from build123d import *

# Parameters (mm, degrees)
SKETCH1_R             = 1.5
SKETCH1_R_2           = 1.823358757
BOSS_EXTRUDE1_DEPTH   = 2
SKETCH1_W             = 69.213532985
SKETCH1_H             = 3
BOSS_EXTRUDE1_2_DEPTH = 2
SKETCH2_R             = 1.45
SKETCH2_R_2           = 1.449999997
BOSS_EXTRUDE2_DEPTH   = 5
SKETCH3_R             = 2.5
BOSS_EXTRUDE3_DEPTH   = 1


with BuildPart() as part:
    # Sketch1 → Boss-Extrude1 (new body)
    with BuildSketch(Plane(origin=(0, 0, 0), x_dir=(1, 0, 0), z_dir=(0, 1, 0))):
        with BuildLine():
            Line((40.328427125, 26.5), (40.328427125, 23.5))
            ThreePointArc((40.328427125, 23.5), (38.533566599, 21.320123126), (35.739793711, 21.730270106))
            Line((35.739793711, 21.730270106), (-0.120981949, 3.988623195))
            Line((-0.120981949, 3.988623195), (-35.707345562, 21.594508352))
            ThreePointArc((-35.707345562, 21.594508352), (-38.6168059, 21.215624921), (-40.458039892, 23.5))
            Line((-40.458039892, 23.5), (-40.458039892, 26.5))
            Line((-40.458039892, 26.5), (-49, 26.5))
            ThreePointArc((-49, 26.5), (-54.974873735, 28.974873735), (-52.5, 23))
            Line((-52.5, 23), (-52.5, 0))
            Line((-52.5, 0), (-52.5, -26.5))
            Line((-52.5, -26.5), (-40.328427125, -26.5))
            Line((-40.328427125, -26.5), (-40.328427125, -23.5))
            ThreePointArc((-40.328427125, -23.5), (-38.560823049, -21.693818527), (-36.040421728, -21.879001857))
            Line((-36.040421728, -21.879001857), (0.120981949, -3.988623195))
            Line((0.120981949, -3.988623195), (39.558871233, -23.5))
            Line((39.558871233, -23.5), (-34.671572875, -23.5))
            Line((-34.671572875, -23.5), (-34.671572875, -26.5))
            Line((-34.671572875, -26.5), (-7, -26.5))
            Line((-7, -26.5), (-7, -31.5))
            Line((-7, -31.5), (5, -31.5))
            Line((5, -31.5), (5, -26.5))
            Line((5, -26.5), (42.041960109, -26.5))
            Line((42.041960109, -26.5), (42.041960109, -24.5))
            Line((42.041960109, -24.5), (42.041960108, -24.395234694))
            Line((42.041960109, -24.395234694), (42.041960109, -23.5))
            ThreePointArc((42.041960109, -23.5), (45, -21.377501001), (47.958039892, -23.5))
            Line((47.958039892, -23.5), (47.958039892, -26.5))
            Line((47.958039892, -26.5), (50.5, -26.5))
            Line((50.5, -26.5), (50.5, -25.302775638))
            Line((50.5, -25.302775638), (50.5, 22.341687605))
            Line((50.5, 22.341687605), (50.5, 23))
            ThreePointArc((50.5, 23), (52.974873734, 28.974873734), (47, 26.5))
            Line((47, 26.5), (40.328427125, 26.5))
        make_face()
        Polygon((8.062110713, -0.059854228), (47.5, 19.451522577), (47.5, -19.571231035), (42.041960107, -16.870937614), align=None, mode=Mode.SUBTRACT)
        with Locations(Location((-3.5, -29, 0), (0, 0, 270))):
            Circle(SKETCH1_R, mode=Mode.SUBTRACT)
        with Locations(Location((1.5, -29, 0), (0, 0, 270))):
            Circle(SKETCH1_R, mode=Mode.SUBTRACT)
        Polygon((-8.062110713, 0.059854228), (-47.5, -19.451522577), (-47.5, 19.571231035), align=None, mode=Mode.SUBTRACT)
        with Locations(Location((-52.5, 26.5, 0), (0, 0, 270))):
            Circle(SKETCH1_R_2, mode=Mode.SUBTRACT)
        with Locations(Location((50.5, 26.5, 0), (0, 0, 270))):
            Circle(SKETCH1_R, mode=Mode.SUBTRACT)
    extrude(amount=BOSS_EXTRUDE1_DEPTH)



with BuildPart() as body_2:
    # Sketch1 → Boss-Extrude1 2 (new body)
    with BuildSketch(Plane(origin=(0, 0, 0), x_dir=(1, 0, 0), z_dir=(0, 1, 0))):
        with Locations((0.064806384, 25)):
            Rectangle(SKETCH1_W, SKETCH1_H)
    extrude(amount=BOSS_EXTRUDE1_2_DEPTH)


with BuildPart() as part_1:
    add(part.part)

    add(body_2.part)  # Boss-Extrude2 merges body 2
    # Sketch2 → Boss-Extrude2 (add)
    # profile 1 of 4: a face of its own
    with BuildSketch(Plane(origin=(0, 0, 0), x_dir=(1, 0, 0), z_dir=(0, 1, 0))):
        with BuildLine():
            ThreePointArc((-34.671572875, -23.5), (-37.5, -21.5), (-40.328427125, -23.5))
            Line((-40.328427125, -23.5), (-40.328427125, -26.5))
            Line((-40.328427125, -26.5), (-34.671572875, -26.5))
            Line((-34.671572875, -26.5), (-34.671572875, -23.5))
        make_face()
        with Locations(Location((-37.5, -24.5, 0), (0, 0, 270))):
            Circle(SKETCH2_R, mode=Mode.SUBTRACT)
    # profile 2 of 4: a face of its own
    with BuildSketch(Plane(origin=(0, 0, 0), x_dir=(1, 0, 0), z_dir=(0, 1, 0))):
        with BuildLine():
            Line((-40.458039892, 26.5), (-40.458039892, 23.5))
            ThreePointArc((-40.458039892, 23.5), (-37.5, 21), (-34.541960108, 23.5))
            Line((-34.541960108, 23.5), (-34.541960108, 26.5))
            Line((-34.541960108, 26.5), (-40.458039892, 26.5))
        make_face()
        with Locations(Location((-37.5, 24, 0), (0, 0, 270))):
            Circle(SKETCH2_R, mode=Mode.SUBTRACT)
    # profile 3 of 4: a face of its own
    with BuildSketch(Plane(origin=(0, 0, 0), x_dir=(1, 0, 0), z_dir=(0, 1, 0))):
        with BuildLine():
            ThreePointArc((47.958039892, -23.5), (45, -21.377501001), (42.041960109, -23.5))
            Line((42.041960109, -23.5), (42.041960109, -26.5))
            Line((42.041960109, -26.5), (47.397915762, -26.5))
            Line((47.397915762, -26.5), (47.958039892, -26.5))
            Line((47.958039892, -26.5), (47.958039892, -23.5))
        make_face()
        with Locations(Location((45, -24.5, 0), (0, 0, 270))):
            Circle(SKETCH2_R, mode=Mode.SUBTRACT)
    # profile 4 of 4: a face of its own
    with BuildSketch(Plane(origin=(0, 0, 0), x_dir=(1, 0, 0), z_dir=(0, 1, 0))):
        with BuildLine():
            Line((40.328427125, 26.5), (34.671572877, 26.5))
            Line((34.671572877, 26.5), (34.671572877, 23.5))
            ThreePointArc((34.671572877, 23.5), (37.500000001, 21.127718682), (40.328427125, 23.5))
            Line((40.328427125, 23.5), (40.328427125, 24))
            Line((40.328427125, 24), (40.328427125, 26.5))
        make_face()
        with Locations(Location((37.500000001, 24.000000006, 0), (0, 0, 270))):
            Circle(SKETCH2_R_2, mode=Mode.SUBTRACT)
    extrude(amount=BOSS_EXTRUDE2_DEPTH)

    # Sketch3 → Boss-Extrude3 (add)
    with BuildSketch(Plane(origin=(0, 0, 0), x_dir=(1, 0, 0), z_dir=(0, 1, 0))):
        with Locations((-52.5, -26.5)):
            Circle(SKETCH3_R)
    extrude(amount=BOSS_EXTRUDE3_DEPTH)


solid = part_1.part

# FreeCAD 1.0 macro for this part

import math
import FreeCAD as App
import Part
import Sketcher
from FreeCAD import Vector

doc = App.newDocument("Part")
body = doc.addObject("PartDesign::Body", "Body")

# Sketch on XZ plane
sketch1 = body.newObject("Sketcher::SketchObject", "Sketch")
sketch1.AttachmentSupport = (doc.getObject("XZ_Plane"), [""])
sketch1.MapMode = "FlatFace"
sketch1.addGeometry([
    Part.LineSegment(Vector(40.33, -26.5, 0), Vector(40.33, -23.5, 0)),  # 0
    Part.ArcOfCircle(Part.Circle(Vector(37.5, -24, 0), Vector(0, 0, 1), 2.87), math.radians(10), math.radians(128)),  # 1
    Part.LineSegment(Vector(35.74, -21.73, 0), Vector(-0.12, -3.99, 0)),  # 2
    Part.LineSegment(Vector(-0.12, -3.99, 0), Vector(-35.71, -21.59, 0)),  # 3
    Part.ArcOfCircle(Part.Circle(Vector(-37.5, -24, 0), Vector(0, 0, 1), 3), math.radians(53), math.radians(170)),  # 4
    Part.LineSegment(Vector(-40.46, -23.5, 0), Vector(-40.46, -26.5, 0)),  # 5
    Part.LineSegment(Vector(-40.46, -26.5, 0), Vector(-49, -26.5, 0)),  # 6
    Part.ArcOfCircle(Part.Circle(Vector(-52.5, -26.5, 0), Vector(0, 0, 1), 3.5), math.radians(90), math.radians(360)),  # 7
    Part.LineSegment(Vector(-52.5, -23, 0), Vector(-52.5, 26.5, 0)),  # 8
    Part.LineSegment(Vector(-52.5, 26.5, 0), Vector(-40.33, 26.5, 0)),  # 9
    Part.LineSegment(Vector(-40.33, 26.5, 0), Vector(-40.33, 23.5, 0)),  # 10
    Part.ArcOfCircle(Part.Circle(Vector(-37.5, 24.5, 0), Vector(0, 0, 1), 3), math.radians(-161), math.radians(-61)),  # 11
    Part.LineSegment(Vector(-36.04, 21.88, 0), Vector(0.12, 3.99, 0)),  # 12
    Part.LineSegment(Vector(0.12, 3.99, 0), Vector(39.56, 23.5, 0)),  # 13
    Part.LineSegment(Vector(39.56, 23.5, 0), Vector(-34.67, 23.5, 0)),  # 14
    Part.LineSegment(Vector(-34.67, 23.5, 0), Vector(-34.67, 26.5, 0)),  # 15
    Part.LineSegment(Vector(-34.67, 26.5, 0), Vector(-7, 26.5, 0)),  # 16
    Part.LineSegment(Vector(-7, 26.5, 0), Vector(-7, 31.5, 0)),  # 17
    Part.LineSegment(Vector(-7, 31.5, 0), Vector(5, 31.5, 0)),  # 18
    Part.LineSegment(Vector(5, 31.5, 0), Vector(5, 26.5, 0)),  # 19
    Part.LineSegment(Vector(5, 26.5, 0), Vector(42.04, 26.5, 0)),  # 20
    Part.LineSegment(Vector(42.04, 26.5, 0), Vector(42.04, 24.5, 0)),  # 21
    Part.LineSegment(Vector(42.04, 24.5, 0), Vector(42.04, 24.4, 0)),  # 22
    Part.LineSegment(Vector(42.04, 24.4, 0), Vector(42.04, 23.5, 0)),  # 23
    Part.ArcOfCircle(Part.Circle(Vector(45, 24.5, 0), Vector(0, 0, 1), 3.12), math.radians(-161), math.radians(-19)),  # 24
    Part.LineSegment(Vector(47.96, 23.5, 0), Vector(47.96, 26.5, 0)),  # 25
    Part.LineSegment(Vector(47.96, 26.5, 0), Vector(50.5, 26.5, 0)),  # 26
    Part.LineSegment(Vector(50.5, 26.5, 0), Vector(50.5, -23, 0)),  # 27
    Part.ArcOfCircle(Part.Circle(Vector(50.5, -26.5, 0), Vector(0, 0, 1), 3.5), math.radians(180), math.radians(450)),  # 28
    Part.LineSegment(Vector(47, -26.5, 0), Vector(40.33, -26.5, 0)),  # 29
    Part.Circle(Vector(-3.5, 29, 0), Vector(0, 0, 1), 1.5),  # 30
    Part.Circle(Vector(1.5, 29, 0), Vector(0, 0, 1), 1.5),  # 31
    Part.LineSegment(Vector(-47.5, -19.57, 0), Vector(-8.06, -0.06, 0)),  # 32
    Part.LineSegment(Vector(-8.06, -0.06, 0), Vector(-47.5, 19.45, 0)),  # 33
    Part.LineSegment(Vector(-47.5, 19.45, 0), Vector(-47.5, -19.57, 0)),  # 34
    Part.Circle(Vector(-52.5, -26.5, 0), Vector(0, 0, 1), 1.82),  # 35
    Part.LineSegment(Vector(47.5, 19.57, 0), Vector(8.06, 0.06, 0)),  # 36
    Part.LineSegment(Vector(8.06, 0.06, 0), Vector(47.5, -19.45, 0)),  # 37
    Part.LineSegment(Vector(47.5, -19.45, 0), Vector(47.5, 19.57, 0)),  # 38
    Part.Circle(Vector(50.5, -26.5, 0), Vector(0, 0, 1), 1.5),  # 39
], False)
sketch1.addConstraint([
    Sketcher.Constraint("Coincident", 0, 2, 1, 1),
    Sketcher.Constraint("Coincident", 1, 2, 2, 1),
    Sketcher.Constraint("Coincident", 2, 2, 3, 1),
    Sketcher.Constraint("Coincident", 3, 2, 4, 1),
    Sketcher.Constraint("Coincident", 4, 2, 5, 1),
    Sketcher.Constraint("Coincident", 5, 2, 6, 1),
    Sketcher.Constraint("Coincident", 6, 2, 7, 2),
    Sketcher.Constraint("Coincident", 7, 1, 8, 1),
    Sketcher.Constraint("Coincident", 8, 2, 9, 1),
    Sketcher.Constraint("Coincident", 9, 2, 10, 1),
    Sketcher.Constraint("Coincident", 10, 2, 11, 1),
    Sketcher.Constraint("Coincident", 11, 2, 12, 1),
    Sketcher.Constraint("Coincident", 12, 2, 13, 1),
    Sketcher.Constraint("Coincident", 13, 2, 14, 1),
    Sketcher.Constraint("Coincident", 14, 2, 15, 1),
    Sketcher.Constraint("Coincident", 15, 2, 16, 1),
    Sketcher.Constraint("Coincident", 16, 2, 17, 1),
    Sketcher.Constraint("Coincident", 17, 2, 18, 1),
    Sketcher.Constraint("Coincident", 18, 2, 19, 1),
    Sketcher.Constraint("Coincident", 19, 2, 20, 1),
    Sketcher.Constraint("Coincident", 20, 2, 21, 1),
    Sketcher.Constraint("Coincident", 21, 2, 22, 1),
    Sketcher.Constraint("Coincident", 22, 2, 23, 1),
    Sketcher.Constraint("Coincident", 23, 2, 24, 1),
    Sketcher.Constraint("Coincident", 24, 2, 25, 1),
    Sketcher.Constraint("Coincident", 25, 2, 26, 1),
    Sketcher.Constraint("Coincident", 26, 2, 27, 1),
    Sketcher.Constraint("Coincident", 27, 2, 28, 2),
    Sketcher.Constraint("Coincident", 28, 1, 29, 1),
    Sketcher.Constraint("Coincident", 29, 2, 0, 1),
    Sketcher.Constraint("Coincident", 32, 2, 33, 1),
    Sketcher.Constraint("Coincident", 33, 2, 34, 1),
    Sketcher.Constraint("Coincident", 34, 2, 32, 1),
    Sketcher.Constraint("Coincident", 36, 2, 37, 1),
    Sketcher.Constraint("Coincident", 37, 2, 38, 1),
    Sketcher.Constraint("Coincident", 38, 2, 36, 1),
    Sketcher.Constraint("Vertical", 0),
    Sketcher.Constraint("Vertical", 5),
    Sketcher.Constraint("Horizontal", 6),
    Sketcher.Constraint("Vertical", 8),
    Sketcher.Constraint("Horizontal", 9),
    Sketcher.Constraint("Vertical", 10),
    Sketcher.Constraint("Horizontal", 14),
    Sketcher.Constraint("Vertical", 15),
    Sketcher.Constraint("Horizontal", 16),
    Sketcher.Constraint("Vertical", 17),
    Sketcher.Constraint("Horizontal", 18),
    Sketcher.Constraint("Vertical", 19),
    Sketcher.Constraint("Horizontal", 20),
    Sketcher.Constraint("Vertical", 21),
    Sketcher.Constraint("Vertical", 22),
    Sketcher.Constraint("Vertical", 23),
    Sketcher.Constraint("Vertical", 25),
    Sketcher.Constraint("Horizontal", 26),
    Sketcher.Constraint("Vertical", 27),
    Sketcher.Constraint("Horizontal", 29),
    Sketcher.Constraint("Vertical", 34),
    Sketcher.Constraint("Vertical", 38),
    Sketcher.Constraint("Coincident", 35, 3, 7, 3),
    Sketcher.Constraint("Coincident", 39, 3, 28, 3),
    Sketcher.Constraint("Equal", 4, 11),
    Sketcher.Constraint("Equal", 7, 28),
    Sketcher.Constraint("Equal", 30, 31),
    Sketcher.Constraint("Equal", 31, 39),
    Sketcher.Constraint("Symmetric", 0, 2, 10, 2, -1, 1),
    Sketcher.Constraint("Symmetric", 2, 2, 12, 2, -1, 1),
    Sketcher.Constraint("Symmetric", 32, 2, 36, 2, -1, 1),
    Sketcher.Constraint("Symmetric", 33, 2, 37, 2, -1, 1),
    Sketcher.Constraint("Symmetric", 1, 3, 4, 3, -2),
    Sketcher.Constraint("Parallel", 2, 12),
    Sketcher.Constraint("Parallel", 3, 13),
    Sketcher.Constraint("Parallel", 13, 32),
    Sketcher.Constraint("Parallel", 12, 33),
    Sketcher.Constraint("Parallel", 32, 36),
    Sketcher.Constraint("Horizontal", 11, 3, 24, 3),
    Sketcher.Constraint("Horizontal", 7, 3, 28, 3),
    Sketcher.Constraint("Horizontal", 30, 3, 31, 3),
    Sketcher.Constraint("Horizontal", 0, 2, 4, 2),
    Sketcher.Constraint("Horizontal", 39, 3, 5, 2),
    Sketcher.Constraint("Horizontal", 10, 2, 13, 2),
    Sketcher.Constraint("Horizontal", 9, 2, 15, 2),
    Sketcher.Constraint("Horizontal", 16, 2, 19, 2),
    Sketcher.Constraint("Horizontal", 24, 3, 21, 2),
    Sketcher.Constraint("Horizontal", 14, 2, 23, 2),
    Sketcher.Constraint("Horizontal", 23, 2, 24, 2),
    Sketcher.Constraint("Horizontal", 20, 2, 25, 2),
    Sketcher.Constraint("Horizontal", 6, 2, 28, 1),
    Sketcher.Constraint("Vertical", 4, 3, 11, 3),
    Sketcher.Constraint("Vertical", 35, 3, 7, 1),
    Sketcher.Constraint("Vertical", 39, 3, 26, 2),
    Sketcher.Constraint("Equal", 5, 10),
    Sketcher.Constraint("Equal", 13, 32),
    Sketcher.Constraint("Equal", 32, 33),
    Sketcher.Constraint("Diameter", 30, 3.0),
    Sketcher.Constraint("Radius", 4, 3.0),
    Sketcher.Constraint("Radius", 7, 3.5),
    Sketcher.Constraint("DistanceX", 18, 1, 18, 2, 12.0),
    Sketcher.Constraint("DistanceY", 0, 1, 0, 2, 3.0),
    Sketcher.Constraint("DistanceY", 17, 1, 17, 2, 5.0),
    Sketcher.Constraint("DistanceY", 21, 2, 21, 1, 2.0),
    Sketcher.Constraint("DistanceY", 8, 1, 8, 2, 49.5),
    Sketcher.Constraint("DistanceY", 1, 3, -1, 1, 24.0),
    Sketcher.Constraint("DistanceX", -1, 1, 24, 3, 45.0),
    Sketcher.Constraint("DistanceY", -1, 1, 30, 3, 29.0),
    Sketcher.Constraint("DistanceX", 6, 2, -1, 1, 49.0),
    Sketcher.Constraint("DistanceX", 16, 2, -1, 1, 7.0),
    Sketcher.Constraint("DistanceX", -1, 1, 28, 1, 47.0),
    Sketcher.Constraint("DistanceX", 4, 3, 1, 3, 75.0),
    Sketcher.Constraint("DistanceX", 11, 3, 30, 3, 34.0),
    Sketcher.Constraint("DistanceX", 30, 3, 31, 3, 5.0),
    Sketcher.Constraint("DistanceX", 8, 2, 33, 2, 5.0),
    Sketcher.Constraint("Radius", 24, 3.122499),
    Sketcher.Constraint("Diameter", 35, 3.646718),
    Sketcher.Constraint("DistanceY", -1, 1, 11, 2, 21.879002),
    Sketcher.Constraint("DistanceX", 14, 2, 14, 1, 74.230444),
    Sketcher.Constraint("DistanceX", 16, 1, 16, 2, 27.671573),
    Sketcher.Constraint("DistanceY", 22, 2, 22, 1, 0.104765),
    Sketcher.Constraint("DistanceY", 34, 2, 34, 1, 39.022754),
    Sketcher.Constraint("DistanceY", 34, 2, -1, 1, 19.571231),
])
pad1 = body.newObject("PartDesign::Pad", "Pad")
pad1.Profile = sketch1
pad1.Length = 2
pad1.Reversed = True
body2 = doc.addObject("PartDesign::Body", "Body001")

# Sketch on XZ plane
sketch2 = body2.newObject("Sketcher::SketchObject", "Sketch001")
sketch2.AttachmentSupport = (doc.getObject("XZ_Plane001"), [""])
sketch2.MapMode = "FlatFace"
sketch2.addGeometry([
    Part.LineSegment(Vector(-34.5, -26.5, 0), Vector(-34.5, -23.5, 0)),
    Part.LineSegment(Vector(-34.5, -23.5, 0), Vector(34.7, -23.5, 0)),
    Part.LineSegment(Vector(34.7, -23.5, 0), Vector(34.7, -26.5, 0)),
    Part.LineSegment(Vector(34.7, -26.5, 0), Vector(-34.5, -26.5, 0)),
], False)
sketch2.addConstraint([
    Sketcher.Constraint("Coincident", 0, 2, 1, 1),
    Sketcher.Constraint("Coincident", 1, 2, 2, 1),
    Sketcher.Constraint("Coincident", 2, 2, 3, 1),
    Sketcher.Constraint("Coincident", 3, 2, 0, 1),
    Sketcher.Constraint("Vertical", 0),
    Sketcher.Constraint("Horizontal", 1),
    Sketcher.Constraint("Vertical", 2),
    Sketcher.Constraint("Horizontal", 3),
    Sketcher.Constraint("DistanceY", 0, 1, 0, 2, 3.0),
    Sketcher.Constraint("DistanceY", 0, 2, -1, 1, 23.5),
    Sketcher.Constraint("DistanceX", 1, 1, 1, 2, 69.213533),
    Sketcher.Constraint("DistanceX", 0, 2, -1, 1, 34.54196),
])
pad2 = body2.newObject("PartDesign::Pad", "Pad001")
pad2.Profile = sketch2
pad2.Length = 2
pad2.Reversed = True
body.AllowCompound = True
doc.recompute()

boolean = body.newObject("PartDesign::Boolean", "Boolean")
boolean.Type = "Fuse"
boolean.addObjects([body2])

# Sketch on XZ plane
sketch3 = body.newObject("Sketcher::SketchObject", "Sketch002")
sketch3.AttachmentSupport = (doc.getObject("XZ_Plane"), [""])
sketch3.MapMode = "FlatFace"
sketch3.addGeometry([
    Part.ArcOfCircle(Part.Circle(Vector(-37.5, 24.5, 0), Vector(0, 0, 1), 3), math.radians(-161), math.radians(-19)),  # 0
    Part.LineSegment(Vector(-40.3, 23.5, 0), Vector(-40.3, 26.5, 0)),  # 1
    Part.LineSegment(Vector(-40.3, 26.5, 0), Vector(-34.7, 26.5, 0)),  # 2
    Part.LineSegment(Vector(-34.7, 26.5, 0), Vector(-34.7, 23.5, 0)),  # 3
    Part.Circle(Vector(-37.5, 24.5, 0), Vector(0, 0, 1), 1.4),  # 4
    Part.LineSegment(Vector(-40.5, -26.5, 0), Vector(-40.5, -23.5, 0)),  # 5
    Part.ArcOfCircle(Part.Circle(Vector(-37.5, -24, 0), Vector(0, 0, 1), 3), math.radians(10), math.radians(170)),  # 6
    Part.LineSegment(Vector(-34.5, -23.5, 0), Vector(-34.5, -26.5, 0)),  # 7
    Part.LineSegment(Vector(-34.5, -26.5, 0), Vector(-40.5, -26.5, 0)),  # 8
    Part.Circle(Vector(-37.5, -24, 0), Vector(0, 0, 1), 1.4),  # 9
    Part.ArcOfCircle(Part.Circle(Vector(45, 24.5, 0), Vector(0, 0, 1), 3.1), math.radians(-161), math.radians(-19)),  # 10
    Part.LineSegment(Vector(42, 23.5, 0), Vector(42, 26.5, 0)),  # 11
    Part.LineSegment(Vector(42, 26.5, 0), Vector(48, 26.5, 0)),  # 12
    Part.LineSegment(Vector(48, 26.5, 0), Vector(48, 23.5, 0)),  # 13
    Part.Circle(Vector(45, 24.5, 0), Vector(0, 0, 1), 1.4),  # 14
    Part.LineSegment(Vector(40.3, -26.5, 0), Vector(34.7, -26.5, 0)),  # 15
    Part.LineSegment(Vector(34.7, -26.5, 0), Vector(34.7, -23.5, 0)),  # 16
    Part.ArcOfCircle(Part.Circle(Vector(37.5, -24, 0), Vector(0, 0, 1), 2.9), math.radians(10), math.radians(170)),  # 17
    Part.LineSegment(Vector(40.3, -23.5, 0), Vector(40.3, -26.5, 0)),  # 18
    Part.Circle(Vector(37.5, -24, 0), Vector(0, 0, 1), 1.4),  # 19
], False)
sketch3.addConstraint([
    Sketcher.Constraint("Coincident", 0, 1, 1, 1),
    Sketcher.Constraint("Coincident", 1, 2, 2, 1),
    Sketcher.Constraint("Coincident", 2, 2, 3, 1),
    Sketcher.Constraint("Coincident", 3, 2, 0, 2),
    Sketcher.Constraint("Coincident", 5, 2, 6, 2),
    Sketcher.Constraint("Coincident", 6, 1, 7, 1),
    Sketcher.Constraint("Coincident", 7, 2, 8, 1),
    Sketcher.Constraint("Coincident", 8, 2, 5, 1),
    Sketcher.Constraint("Coincident", 10, 1, 11, 1),
    Sketcher.Constraint("Coincident", 11, 2, 12, 1),
    Sketcher.Constraint("Coincident", 12, 2, 13, 1),
    Sketcher.Constraint("Coincident", 13, 2, 10, 2),
    Sketcher.Constraint("Coincident", 15, 2, 16, 1),
    Sketcher.Constraint("Coincident", 16, 2, 17, 2),
    Sketcher.Constraint("Coincident", 17, 1, 18, 1),
    Sketcher.Constraint("Coincident", 18, 2, 15, 1),
    Sketcher.Constraint("Vertical", 1),
    Sketcher.Constraint("Horizontal", 2),
    Sketcher.Constraint("Vertical", 3),
    Sketcher.Constraint("Vertical", 5),
    Sketcher.Constraint("Vertical", 7),
    Sketcher.Constraint("Horizontal", 8),
    Sketcher.Constraint("Vertical", 11),
    Sketcher.Constraint("Horizontal", 12),
    Sketcher.Constraint("Vertical", 13),
    Sketcher.Constraint("Horizontal", 15),
    Sketcher.Constraint("Vertical", 16),
    Sketcher.Constraint("Vertical", 18),
    Sketcher.Constraint("Coincident", 4, 3, 0, 3),
    Sketcher.Constraint("Coincident", 9, 3, 6, 3),
    Sketcher.Constraint("Coincident", 14, 3, 10, 3),
    Sketcher.Constraint("Coincident", 19, 3, 17, 3),
    Sketcher.Constraint("Equal", 0, 6),
    Sketcher.Constraint("Equal", 4, 9),
    Sketcher.Constraint("Equal", 9, 14),
    Sketcher.Constraint("Equal", 14, 19),
    Sketcher.Constraint("Symmetric", 2, 2, 15, 2, -1, 1),
    Sketcher.Constraint("Symmetric", 0, 1, 17, 1, -1, 1),
    Sketcher.Constraint("Symmetric", 6, 3, 17, 3, -2),
    Sketcher.Constraint("Horizontal", 4, 3, 10, 3),
    Sketcher.Constraint("Horizontal", 0, 1, 3, 2),
    Sketcher.Constraint("Horizontal", 5, 2, 6, 1),
    Sketcher.Constraint("Horizontal", 3, 2, 10, 1),
    Sketcher.Constraint("Horizontal", 2, 2, 11, 2),
    Sketcher.Constraint("Horizontal", 10, 1, 13, 2),
    Sketcher.Constraint("Horizontal", 8, 2, 15, 2),
    Sketcher.Constraint("Horizontal", 6, 1, 16, 2),
    Sketcher.Constraint("Horizontal", 16, 2, 17, 1),
    Sketcher.Constraint("Equal", 8, 12),
    Sketcher.Constraint("Radius", 0, 3.0),
    Sketcher.Constraint("Diameter", 4, 2.9),
    Sketcher.Constraint("DistanceY", 1, 1, 1, 2, 3.0),
    Sketcher.Constraint("DistanceY", 6, 3, -1, 1, 24.0),
    Sketcher.Constraint("DistanceX", -1, 1, 10, 3, 45.0),
    Sketcher.Constraint("DistanceX", 6, 3, 17, 3, 75.0),
    Sketcher.Constraint("DistanceY", 0, 1, 0, 3, 1.0),
    Sketcher.Constraint("DistanceY", 5, 2, 0, 1, 47.0),
])
pad3 = body.newObject("PartDesign::Pad", "Pad002")
pad3.Profile = sketch3
pad3.Length = 5
pad3.Reversed = True

# Sketch on XZ plane
sketch4 = body.newObject("Sketcher::SketchObject", "Sketch003")
sketch4.AttachmentSupport = (doc.getObject("XZ_Plane"), [""])
sketch4.MapMode = "FlatFace"
sketch4.addGeometry(Part.Circle(Vector(-52.5, 26.5, 0), Vector(0, 0, 1), 2.5), False)
sketch4.addConstraint([
    Sketcher.Constraint("Diameter", 0, 5.0),
    Sketcher.Constraint("DistanceX", 0, 3, -1, 1, 52.5),
    Sketcher.Constraint("DistanceY", -1, 1, 0, 3, 26.5),
])
pad4 = body.newObject("PartDesign::Pad", "Pad003")
pad4.Profile = sketch4
pad4.Length = 1
pad4.Reversed = True

doc.recompute()
